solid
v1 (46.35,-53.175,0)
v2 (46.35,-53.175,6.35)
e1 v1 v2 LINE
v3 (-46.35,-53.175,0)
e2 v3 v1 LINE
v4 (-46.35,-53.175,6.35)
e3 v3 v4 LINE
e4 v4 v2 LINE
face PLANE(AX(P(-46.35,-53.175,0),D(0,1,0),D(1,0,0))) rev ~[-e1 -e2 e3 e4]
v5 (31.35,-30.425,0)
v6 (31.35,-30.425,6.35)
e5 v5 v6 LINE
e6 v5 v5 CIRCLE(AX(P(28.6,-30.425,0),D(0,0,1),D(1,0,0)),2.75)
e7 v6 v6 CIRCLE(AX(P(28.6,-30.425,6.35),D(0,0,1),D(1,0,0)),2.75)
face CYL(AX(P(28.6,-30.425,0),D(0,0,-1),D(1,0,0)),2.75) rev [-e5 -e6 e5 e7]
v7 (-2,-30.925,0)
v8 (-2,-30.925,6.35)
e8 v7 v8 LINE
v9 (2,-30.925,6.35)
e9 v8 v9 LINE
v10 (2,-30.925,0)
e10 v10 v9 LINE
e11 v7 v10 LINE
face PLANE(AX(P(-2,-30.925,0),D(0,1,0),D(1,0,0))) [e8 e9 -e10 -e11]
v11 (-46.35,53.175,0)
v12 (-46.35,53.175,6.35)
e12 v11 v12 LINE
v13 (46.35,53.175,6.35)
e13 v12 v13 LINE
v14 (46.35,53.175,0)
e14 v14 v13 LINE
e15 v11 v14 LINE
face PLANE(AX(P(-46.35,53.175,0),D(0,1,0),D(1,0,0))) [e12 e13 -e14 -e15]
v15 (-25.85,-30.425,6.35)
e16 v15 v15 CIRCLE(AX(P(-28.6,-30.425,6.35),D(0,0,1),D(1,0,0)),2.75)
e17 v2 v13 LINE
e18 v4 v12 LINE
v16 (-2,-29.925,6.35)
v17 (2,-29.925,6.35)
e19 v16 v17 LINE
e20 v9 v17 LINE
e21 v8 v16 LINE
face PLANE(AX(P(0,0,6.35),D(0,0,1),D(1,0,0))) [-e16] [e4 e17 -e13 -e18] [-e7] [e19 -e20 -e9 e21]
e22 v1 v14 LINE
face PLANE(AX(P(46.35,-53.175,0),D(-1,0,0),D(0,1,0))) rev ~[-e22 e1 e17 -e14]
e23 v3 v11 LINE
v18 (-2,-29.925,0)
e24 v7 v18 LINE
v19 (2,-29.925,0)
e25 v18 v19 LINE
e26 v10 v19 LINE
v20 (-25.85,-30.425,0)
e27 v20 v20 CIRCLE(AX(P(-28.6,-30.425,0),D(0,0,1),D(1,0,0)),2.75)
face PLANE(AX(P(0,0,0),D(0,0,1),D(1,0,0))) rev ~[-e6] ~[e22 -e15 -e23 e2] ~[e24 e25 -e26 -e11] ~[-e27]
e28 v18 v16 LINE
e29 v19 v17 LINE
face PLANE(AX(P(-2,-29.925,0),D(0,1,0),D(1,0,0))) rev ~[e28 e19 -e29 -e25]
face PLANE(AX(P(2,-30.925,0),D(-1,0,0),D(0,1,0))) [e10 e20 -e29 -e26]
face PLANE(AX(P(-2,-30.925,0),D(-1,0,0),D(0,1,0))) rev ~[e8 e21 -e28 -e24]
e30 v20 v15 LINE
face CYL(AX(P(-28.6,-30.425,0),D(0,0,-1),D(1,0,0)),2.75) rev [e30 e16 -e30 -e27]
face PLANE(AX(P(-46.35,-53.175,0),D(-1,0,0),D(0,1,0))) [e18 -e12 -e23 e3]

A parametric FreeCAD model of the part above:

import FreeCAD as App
import Part
import Sketcher


def add_polygon(sketch, points):
    """Adds a closed chain of lines whose ends are joined by coincident constraints."""
    first, n = sketch.GeometryCount, len(points)
    for a, b in zip(points, points[1:] + points[:1]):
        sketch.addGeometry(Part.LineSegment(App.Vector(*a, 0), App.Vector(*b, 0)), False)
    for i in range(n):
        sketch.addConstraint(Sketcher.Constraint("Coincident", first + i, 2, first + (i + 1) % n, 1))

doc = App.newDocument("Part")
params = doc.addObject("Spreadsheet::Sheet", "Params")
for row, (alias, value) in enumerate([
    ("sketch1_diameter", "5.5 mm"),
    ("sketch1_width", "4 mm"),
    ("sketch1_height", "1 mm"),
    ("sketch1_width2", "92.7 mm"),
    ("sketch1_height2", "106.35 mm"),
    ("pad1_length", "6.35 mm"),
], start=1):
    params.set(f"A{row}", alias)
    params.set(f"B{row}", "=" + value)
    params.setAlias(f"B{row}", alias)

body = doc.addObject("PartDesign::Body", "Body")

sketch1 = doc.addObject("Sketcher::SketchObject", "Sketch")
body.addObject(sketch1)
sketch1.AttachmentSupport = (doc.XY_Plane, [""])
sketch1.MapMode = "FlatFace"
add_polygon(sketch1, [(-46.4, 53.2), (-46.4, -53.2), (46.4, -53.2), (46.4, 53.2)])
add_polygon(sketch1, [(2, -30.9), (-2, -30.9), (-2, -29.9), (2, -29.9)])
sketch1.addGeometry(Part.Circle(App.Vector(-28.6, -30.4, 0), App.Vector(0, 0, 1), 2.8), False)
sketch1.addGeometry(Part.Circle(App.Vector(28.6, -30.4, 0), App.Vector(0, 0, 1), 2.8), False)
sketch1.addConstraint([
    Sketcher.Constraint("Vertical", 0),
    Sketcher.Constraint("Horizontal", 1),
    Sketcher.Constraint("Vertical", 2),
    Sketcher.Constraint("Horizontal", 3),
    Sketcher.Constraint("Horizontal", 4),
    Sketcher.Constraint("Vertical", 5),
    Sketcher.Constraint("Horizontal", 6),
    Sketcher.Constraint("Vertical", 7),
    Sketcher.Constraint("Equal", 8, 9),
    Sketcher.Constraint("Symmetric", 0, 2, 2, 2, -1, 1),
    Sketcher.Constraint("Symmetric", 8, 3, 9, 3, -2),
    Sketcher.Constraint("Diameter", 8, 5.5),
    Sketcher.Constraint("DistanceX", 4, 2, 4, 1, 4.0),
    Sketcher.Constraint("DistanceY", 5, 1, 5, 2, 1.0),
    Sketcher.Constraint("DistanceX", 1, 1, 1, 2, 92.7),
    Sketcher.Constraint("DistanceX", 4, 2, -1, 1, 2.0),
    Sketcher.Constraint("DistanceY", 0, 2, 0, 1, 106.35),
    Sketcher.Constraint("DistanceX", 8, 3, -1, 1, 28.6),
    Sketcher.Constraint("DistanceY", 9, 3, 2, 2, 83.6),
    Sketcher.Constraint("DistanceY", 4, 2, 8, 3, 0.5),
])
sketch1.setExpression("Constraints[19]", "Params.sketch1_diameter")
sketch1.setExpression("Constraints[20]", "Params.sketch1_width")
sketch1.setExpression("Constraints[21]", "Params.sketch1_height")
sketch1.setExpression("Constraints[22]", "Params.sketch1_width2")
sketch1.setExpression("Constraints[24]", "Params.sketch1_height2")
pad1 = doc.addObject("PartDesign::Pad", "Pad")
body.addObject(pad1)
pad1.Profile = sketch1
pad1.setExpression("Length", "Params.pad1_length")

doc.recompute()
